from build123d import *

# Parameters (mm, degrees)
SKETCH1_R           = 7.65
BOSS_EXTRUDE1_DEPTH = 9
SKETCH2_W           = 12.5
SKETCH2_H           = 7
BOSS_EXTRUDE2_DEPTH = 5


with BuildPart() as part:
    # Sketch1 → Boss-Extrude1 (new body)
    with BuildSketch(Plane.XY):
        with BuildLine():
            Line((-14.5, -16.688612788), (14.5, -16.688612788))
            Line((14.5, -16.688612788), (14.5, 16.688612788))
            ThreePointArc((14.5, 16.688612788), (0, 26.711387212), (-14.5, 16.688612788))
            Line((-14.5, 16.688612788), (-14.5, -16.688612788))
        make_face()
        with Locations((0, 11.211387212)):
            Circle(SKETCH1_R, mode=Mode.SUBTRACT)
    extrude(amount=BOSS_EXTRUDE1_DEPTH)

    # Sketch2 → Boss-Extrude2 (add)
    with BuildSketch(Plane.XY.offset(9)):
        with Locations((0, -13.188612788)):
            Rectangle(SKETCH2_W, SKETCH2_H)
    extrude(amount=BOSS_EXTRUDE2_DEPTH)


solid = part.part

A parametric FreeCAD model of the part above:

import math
import FreeCAD as App
import Part
import Sketcher
from FreeCAD import Vector
Q = App.Units.Quantity

doc = App.newDocument("Part")
body = doc.addObject("PartDesign::Body", "Body")

# Sketch on XY plane
sketch1 = body.newObject("Sketcher::SketchObject", "Sketch")
sketch1.AttachmentSupport = (doc.getObject("XY_Plane"), [""])
sketch1.MapMode = "FlatFace"
sketch1.addGeometry(Part.LineSegment(Vector(-14, -17, 0), Vector(14, -17, 0)), False)
sketch1.addGeometry(Part.LineSegment(Vector(14, -17, 0), Vector(14, 17, 0)), False)
sketch1.addGeometry(Part.ArcOfCircle(Part.Circle(Vector(0, 11, 0), Vector(0, 0, 1), 16), math.radians(21), math.radians(159)), False)
sketch1.addGeometry(Part.LineSegment(Vector(-14, 17, 0), Vector(-14, -17, 0)), False)
sketch1.addGeometry(Part.Circle(Vector(0, 11, 0), Vector(0, 0, 1), 8), False)
sketch1.addConstraint(Sketcher.Constraint("Coincident", 0, 2, 1, 1))
sketch1.addConstraint(Sketcher.Constraint("Coincident", 1, 2, 2, 1))
sketch1.addConstraint(Sketcher.Constraint("Coincident", 2, 2, 3, 1))
sketch1.addConstraint(Sketcher.Constraint("Coincident", 3, 2, 0, 1))
sketch1.addConstraint(Sketcher.Constraint("Horizontal", 0))
sketch1.addConstraint(Sketcher.Constraint("Vertical", 1))
sketch1.addConstraint(Sketcher.Constraint("Vertical", 3))
sketch1.addConstraint(Sketcher.Constraint("Coincident", 4, 3, 2, 3))
sketch1.addConstraint(Sketcher.Constraint("Symmetric", 0, 2, 2, 2, -1, 1))
sketch1.addConstraint(Sketcher.Constraint("PointOnObject", 2, 3, -2))
sketch1.addConstraint(Sketcher.Constraint("Diameter", 4, Q("15.3 mm")))
sketch1.addConstraint(Sketcher.Constraint("Radius", 2, Q("15.5 mm")))
sketch1.addConstraint(Sketcher.Constraint("DistanceX", 0, 1, 0, 2, Q("29 mm")))
sketch1.addConstraint(Sketcher.Constraint("DistanceY", 0, 2, 2, 3, Q("27.9 mm")))
pad1 = body.newObject("PartDesign::Pad", "Pad")
pad1.Profile = sketch1
pad1.Length = 9

# Sketch on XY plane
sketch2 = body.newObject("Sketcher::SketchObject", "Sketch001")
sketch2.AttachmentSupport = (doc.getObject("XY_Plane"), [""])
sketch2.MapMode = "FlatFace"
sketch2.AttachmentOffset = App.Placement(Vector(0, 0, 9), App.Rotation())
sketch2.addGeometry(Part.LineSegment(Vector(-6, -10, 0), Vector(-6, -17, 0)), False)
sketch2.addGeometry(Part.LineSegment(Vector(-6, -17, 0), Vector(6, -17, 0)), False)
sketch2.addGeometry(Part.LineSegment(Vector(6, -17, 0), Vector(6, -10, 0)), False)
sketch2.addGeometry(Part.LineSegment(Vector(6, -10, 0), Vector(-6, -10, 0)), False)
sketch2.addConstraint(Sketcher.Constraint("Coincident", 0, 2, 1, 1))
sketch2.addConstraint(Sketcher.Constraint("Coincident", 1, 2, 2, 1))
sketch2.addConstraint(Sketcher.Constraint("Coincident", 2, 2, 3, 1))
sketch2.addConstraint(Sketcher.Constraint("Coincident", 3, 2, 0, 1))
sketch2.addConstraint(Sketcher.Constraint("Vertical", 0))
sketch2.addConstraint(Sketcher.Constraint("Horizontal", 1))
sketch2.addConstraint(Sketcher.Constraint("Vertical", 2))
sketch2.addConstraint(Sketcher.Constraint("Horizontal", 3))
sketch2.addConstraint(Sketcher.Constraint("DistanceY", 0, 2, 0, 1, Q("7 mm")))
sketch2.addConstraint(Sketcher.Constraint("DistanceX", 1, 1, 1, 2, Q("12.5 mm")))
sketch2.addConstraint(Sketcher.Constraint("DistanceX", 0, 2, -1, 1, Q("6.25 mm")))
sketch2.addConstraint(Sketcher.Constraint("DistanceY", 0, 2, -1, 1, Q("16.688613 mm")))
pad2 = body.newObject("PartDesign::Pad", "Pad001")
pad2.Profile = sketch2
pad2.Length = 5

doc.recompute()
